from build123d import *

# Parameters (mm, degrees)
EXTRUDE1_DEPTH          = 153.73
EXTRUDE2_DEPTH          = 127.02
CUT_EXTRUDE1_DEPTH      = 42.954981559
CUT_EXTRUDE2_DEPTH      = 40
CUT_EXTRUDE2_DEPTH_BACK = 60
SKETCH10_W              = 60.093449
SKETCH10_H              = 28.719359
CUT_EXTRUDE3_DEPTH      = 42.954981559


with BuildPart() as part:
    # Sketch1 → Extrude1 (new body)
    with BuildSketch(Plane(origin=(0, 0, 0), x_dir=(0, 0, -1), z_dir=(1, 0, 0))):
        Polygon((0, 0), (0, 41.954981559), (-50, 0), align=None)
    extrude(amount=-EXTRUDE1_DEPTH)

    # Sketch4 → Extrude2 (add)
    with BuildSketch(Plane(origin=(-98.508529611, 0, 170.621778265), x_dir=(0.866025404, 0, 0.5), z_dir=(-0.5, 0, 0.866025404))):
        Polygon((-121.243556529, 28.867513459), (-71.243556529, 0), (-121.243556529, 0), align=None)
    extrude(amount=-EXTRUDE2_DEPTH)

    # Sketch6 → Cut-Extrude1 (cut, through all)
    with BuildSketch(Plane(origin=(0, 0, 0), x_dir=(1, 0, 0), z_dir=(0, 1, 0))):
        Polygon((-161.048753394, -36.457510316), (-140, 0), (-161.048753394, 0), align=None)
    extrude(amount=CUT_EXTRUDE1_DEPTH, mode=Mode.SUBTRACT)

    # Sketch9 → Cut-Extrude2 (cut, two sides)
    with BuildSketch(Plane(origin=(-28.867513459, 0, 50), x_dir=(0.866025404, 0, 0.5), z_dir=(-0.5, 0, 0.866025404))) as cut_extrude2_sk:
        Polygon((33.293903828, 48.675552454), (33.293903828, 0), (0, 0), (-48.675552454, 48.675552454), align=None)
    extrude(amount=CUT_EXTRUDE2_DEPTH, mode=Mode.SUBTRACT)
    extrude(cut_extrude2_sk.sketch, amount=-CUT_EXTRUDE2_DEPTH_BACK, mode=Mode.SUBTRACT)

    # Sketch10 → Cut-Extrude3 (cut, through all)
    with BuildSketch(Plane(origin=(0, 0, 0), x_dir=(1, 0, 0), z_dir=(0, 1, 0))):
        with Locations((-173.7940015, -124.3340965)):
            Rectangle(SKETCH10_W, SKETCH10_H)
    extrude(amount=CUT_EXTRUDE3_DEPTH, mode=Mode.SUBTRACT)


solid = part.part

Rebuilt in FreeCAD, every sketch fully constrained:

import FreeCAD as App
import Part
import Sketcher
Q = App.Units.Quantity

doc = App.newDocument("Part")
body = doc.addObject("PartDesign::Body", "Body")

# Sketch on YZ plane
sketch1 = body.newObject("Sketcher::SketchObject", "Sketch")
sketch1.AttachmentSupport = (doc.getObject("YZ_Plane"), [""])
sketch1.MapMode = "FlatFace"
sketch1.addGeometry([
    Part.LineSegment(App.Vector(0, 0, 0), App.Vector(41.954982, 0, 0)),
    Part.LineSegment(App.Vector(41.954982, 0, 0), App.Vector(0, 50, 0)),
    Part.LineSegment(App.Vector(0, 50, 0), App.Vector(0, 0, 0)),
], False)
sketch1.addConstraint([
    Sketcher.Constraint("Coincident", 0, 2, 1, 1),
    Sketcher.Constraint("Coincident", 1, 2, 2, 1),
    Sketcher.Constraint("Coincident", 2, 2, 0, 1),
    Sketcher.Constraint("Horizontal", 0),
    Sketcher.Constraint("Vertical", 2),
    Sketcher.Constraint("Coincident", 2, 2, -1, 1),
    Sketcher.Constraint("DistanceY", 2, 2, 2, 1, 50.0),
    Sketcher.Constraint("Angle", 1, Q("130 deg")),
])
pad1 = body.newObject("PartDesign::Pad", "Pad")
pad1.Profile = sketch1
pad1.Length = 153.73
pad1.Reversed = True

# Sketch on an angled plane
sketch2 = body.newObject("Sketcher::SketchObject", "Sketch001")
sketch2.Placement = App.Placement(App.Vector(-98.50853, 0, 170.621778), App.Rotation(App.Vector(0.866025404, 0, 0.5), App.Vector(0, 1, 0), App.Vector(-0.5, 0, 0.866025404), "ZXY"))
sketch2.addGeometry([
    Part.LineSegment(App.Vector(-71.243557, 0, 0), App.Vector(-121.243557, 28.867513, 0)),
    Part.LineSegment(App.Vector(-121.243557, 28.867513, 0), App.Vector(-121.243557, 0, 0)),
    Part.LineSegment(App.Vector(-121.243557, 0, 0), App.Vector(-71.243557, 0, 0)),
], False)
sketch2.addConstraint([
    Sketcher.Constraint("Coincident", 0, 2, 1, 1),
    Sketcher.Constraint("Coincident", 1, 2, 2, 1),
    Sketcher.Constraint("Coincident", 2, 2, 0, 1),
    Sketcher.Constraint("Vertical", 1),
    Sketcher.Constraint("Horizontal", 2),
    Sketcher.Constraint("PointOnObject", 1, 2, -1),
    Sketcher.Constraint("DistanceX", 2, 1, 2, 2, 50.0),
    Sketcher.Constraint("Angle", 0, Q("150 deg")),
    Sketcher.Constraint("DistanceX", 0, 2, -1, 1, 121.243557),
])
pad2 = body.newObject("PartDesign::Pad", "Pad001")
pad2.Profile = sketch2
pad2.Length = 127.02
pad2.Reversed = True

# Sketch on XZ plane
sketch3 = body.newObject("Sketcher::SketchObject", "Sketch002")
sketch3.AttachmentSupport = (doc.getObject("XZ_Plane"), [""])
sketch3.MapMode = "FlatFace"
sketch3.addGeometry([
    Part.LineSegment(App.Vector(-161.048753, 36.45751, 0), App.Vector(-140, 0, 0)),
    Part.LineSegment(App.Vector(-140, 0, 0), App.Vector(-161.048753, 0, 0)),
    Part.LineSegment(App.Vector(-161.048753, 0, 0), App.Vector(-161.048753, 36.45751, 0)),
], False)
sketch3.addConstraint([
    Sketcher.Constraint("Coincident", 0, 2, 1, 1),
    Sketcher.Constraint("Coincident", 1, 2, 2, 1),
    Sketcher.Constraint("Coincident", 2, 2, 0, 1),
    Sketcher.Constraint("Horizontal", 1),
    Sketcher.Constraint("Vertical", 2),
    Sketcher.Constraint("PointOnObject", 0, 2, -1),
    Sketcher.Constraint("Angle", 0, Q("-60 deg")),
    Sketcher.Constraint("DistanceX", 0, 2, -1, 1, 140.0),
    Sketcher.Constraint("DistanceY", 2, 1, 2, 2, 36.45751),
])
pocket1 = body.newObject("PartDesign::Pocket", "Pocket")
pocket1.Profile = sketch3
pocket1.Type = "ThroughAll"

# Sketch on an angled plane
sketch4 = body.newObject("Sketcher::SketchObject", "Sketch003")
sketch4.Placement = App.Placement(App.Vector(-28.867513, 0, 50), App.Rotation(App.Vector(0.866025404, 0, 0.5), App.Vector(0, 1, 0), App.Vector(-0.5, 0, 0.866025404), "ZXY"))
sketch4.addGeometry([
    Part.LineSegment(App.Vector(33.293904, 0, 0), App.Vector(33.293904, 48.675552, 0)),
    Part.LineSegment(App.Vector(33.293904, 48.675552, 0), App.Vector(-48.675552, 48.675552, 0)),
    Part.LineSegment(App.Vector(-48.675552, 48.675552, 0), App.Vector(0, 0, 0)),
    Part.LineSegment(App.Vector(0, 0, 0), App.Vector(33.293904, 0, 0)),
], False)
sketch4.addConstraint([
    Sketcher.Constraint("Coincident", 0, 2, 1, 1),
    Sketcher.Constraint("Coincident", 1, 2, 2, 1),
    Sketcher.Constraint("Coincident", 2, 2, 3, 1),
    Sketcher.Constraint("Coincident", 3, 2, 0, 1),
    Sketcher.Constraint("Vertical", 0),
    Sketcher.Constraint("Horizontal", 1),
    Sketcher.Constraint("Horizontal", 3),
    Sketcher.Constraint("Coincident", 2, 2, -1, 1),
    Sketcher.Constraint("Angle", 2, Q("-45 deg")),
    Sketcher.Constraint("DistanceX", 1, 2, 1, 1, 81.969456),
    Sketcher.Constraint("DistanceX", 3, 1, 3, 2, 33.293904),
])
pocket2 = body.newObject("PartDesign::Pocket", "Pocket001")
pocket2.Profile = sketch4
pocket2.Type = "ThroughAll"
pocket2.Midplane = True

# Sketch on XZ plane
sketch5 = body.newObject("Sketcher::SketchObject", "Sketch004")
sketch5.AttachmentSupport = (doc.getObject("XZ_Plane"), [""])
sketch5.MapMode = "FlatFace"
sketch5.addGeometry([
    Part.LineSegment(App.Vector(-203.840726, 109.974417, 0), App.Vector(-203.840726, 138.693776, 0)),
    Part.LineSegment(App.Vector(-203.840726, 138.693776, 0), App.Vector(-143.747277, 138.693776, 0)),
    Part.LineSegment(App.Vector(-143.747277, 138.693776, 0), App.Vector(-143.747277, 109.974417, 0)),
    Part.LineSegment(App.Vector(-143.747277, 109.974417, 0), App.Vector(-203.840726, 109.974417, 0)),
], False)
sketch5.addConstraint([
    Sketcher.Constraint("Coincident", 0, 2, 1, 1),
    Sketcher.Constraint("Coincident", 1, 2, 2, 1),
    Sketcher.Constraint("Coincident", 2, 2, 3, 1),
    Sketcher.Constraint("Coincident", 3, 2, 0, 1),
    Sketcher.Constraint("Vertical", 0),
    Sketcher.Constraint("Horizontal", 1),
    Sketcher.Constraint("Vertical", 2),
    Sketcher.Constraint("Horizontal", 3),
    Sketcher.Constraint("DistanceX", 1, 1, 1, 2, 60.093449),
    Sketcher.Constraint("DistanceY", 0, 1, 0, 2, 28.719359),
    Sketcher.Constraint("DistanceX", 0, 2, -1, 1, 203.840726),
    Sketcher.Constraint("DistanceY", -1, 1, 0, 2, 138.693776),
])
pocket3 = body.newObject("PartDesign::Pocket", "Pocket002")
pocket3.Profile = sketch5
pocket3.Type = "ThroughAll"

doc.recompute()
